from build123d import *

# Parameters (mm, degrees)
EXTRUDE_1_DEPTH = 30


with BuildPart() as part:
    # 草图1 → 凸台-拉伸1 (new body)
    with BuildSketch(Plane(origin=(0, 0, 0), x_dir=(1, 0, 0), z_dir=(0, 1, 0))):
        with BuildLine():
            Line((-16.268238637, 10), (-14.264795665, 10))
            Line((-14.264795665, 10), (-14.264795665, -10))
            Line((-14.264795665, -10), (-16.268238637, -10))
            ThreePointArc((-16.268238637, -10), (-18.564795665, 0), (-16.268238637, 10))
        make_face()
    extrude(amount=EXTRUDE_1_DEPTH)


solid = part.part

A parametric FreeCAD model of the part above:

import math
import FreeCAD as App
import Part
import Sketcher
Q = App.Units.Quantity

doc = App.newDocument("Part")
params = doc.addObject("Spreadsheet::Sheet", "Params")
for row, (alias, value) in enumerate([
    ("sketch1_height", "20 mm"),
    ("sketch1_radius", "22.92 mm"),
    ("pad1_length", "30 mm"),
], start=1):
    params.set(f"A{row}", alias)
    params.set(f"B{row}", "=" + value)
    params.setAlias(f"B{row}", alias)

body = doc.addObject("PartDesign::Body", "Body")

sketch1 = body.newObject("Sketcher::SketchObject", "Sketch")
sketch1.AttachmentSupport = (doc.getObject("XZ_Plane"), [""])
sketch1.MapMode = "FlatFace"
sketch1.addGeometry(Part.LineSegment(App.Vector(-14.264796, -10, 0), App.Vector(-16.268239, -10, 0)), False)
sketch1.addGeometry(Part.ArcOfCircle(Part.Circle(App.Vector(4.355204, 0, 0), App.Vector(0, 0, 1), 22.92), math.radians(154.131945), math.radians(205.868055)), False)
sketch1.addGeometry(Part.LineSegment(App.Vector(-16.268239, 10, 0), App.Vector(-14.264796, 10, 0)), False)
sketch1.addGeometry(Part.LineSegment(App.Vector(-14.264796, 10, 0), App.Vector(-14.264796, -10, 0)), False)
sketch1.addConstraint(Sketcher.Constraint("Coincident", 0, 2, 1, 2))
sketch1.addConstraint(Sketcher.Constraint("Coincident", 1, 1, 2, 1))
sketch1.addConstraint(Sketcher.Constraint("Coincident", 2, 2, 3, 1))
sketch1.addConstraint(Sketcher.Constraint("Coincident", 3, 2, 0, 1))
sketch1.addConstraint(Sketcher.Constraint("Horizontal", 0))
sketch1.addConstraint(Sketcher.Constraint("Horizontal", 2))
sketch1.addConstraint(Sketcher.Constraint("Vertical", 3))
sketch1.addConstraint(Sketcher.Constraint("Symmetric", 0, 2, 1, 1, -1))
sketch1.addConstraint(Sketcher.Constraint("DistanceY", 3, 2, 3, 1, Q("20 mm")))
sketch1.addConstraint(Sketcher.Constraint("Radius", 1, Q("22.92 mm")))
sketch1.addConstraint(Sketcher.Constraint("DistanceX", 2, 2, 1, 3, Q("18.62 mm")))
sketch1.addConstraint(Sketcher.Constraint("DistanceX", 0, 2, -1, 1, Q("16.268239 mm")))
sketch1.setExpression("Constraints[8]", "Params.sketch1_height")
sketch1.setExpression("Constraints[9]", "Params.sketch1_radius")
pad1 = body.newObject("PartDesign::Pad", "Pad")
pad1.Profile = sketch1
pad1.setExpression("Length", "Params.pad1_length")
pad1.Reversed = True

doc.recompute()
